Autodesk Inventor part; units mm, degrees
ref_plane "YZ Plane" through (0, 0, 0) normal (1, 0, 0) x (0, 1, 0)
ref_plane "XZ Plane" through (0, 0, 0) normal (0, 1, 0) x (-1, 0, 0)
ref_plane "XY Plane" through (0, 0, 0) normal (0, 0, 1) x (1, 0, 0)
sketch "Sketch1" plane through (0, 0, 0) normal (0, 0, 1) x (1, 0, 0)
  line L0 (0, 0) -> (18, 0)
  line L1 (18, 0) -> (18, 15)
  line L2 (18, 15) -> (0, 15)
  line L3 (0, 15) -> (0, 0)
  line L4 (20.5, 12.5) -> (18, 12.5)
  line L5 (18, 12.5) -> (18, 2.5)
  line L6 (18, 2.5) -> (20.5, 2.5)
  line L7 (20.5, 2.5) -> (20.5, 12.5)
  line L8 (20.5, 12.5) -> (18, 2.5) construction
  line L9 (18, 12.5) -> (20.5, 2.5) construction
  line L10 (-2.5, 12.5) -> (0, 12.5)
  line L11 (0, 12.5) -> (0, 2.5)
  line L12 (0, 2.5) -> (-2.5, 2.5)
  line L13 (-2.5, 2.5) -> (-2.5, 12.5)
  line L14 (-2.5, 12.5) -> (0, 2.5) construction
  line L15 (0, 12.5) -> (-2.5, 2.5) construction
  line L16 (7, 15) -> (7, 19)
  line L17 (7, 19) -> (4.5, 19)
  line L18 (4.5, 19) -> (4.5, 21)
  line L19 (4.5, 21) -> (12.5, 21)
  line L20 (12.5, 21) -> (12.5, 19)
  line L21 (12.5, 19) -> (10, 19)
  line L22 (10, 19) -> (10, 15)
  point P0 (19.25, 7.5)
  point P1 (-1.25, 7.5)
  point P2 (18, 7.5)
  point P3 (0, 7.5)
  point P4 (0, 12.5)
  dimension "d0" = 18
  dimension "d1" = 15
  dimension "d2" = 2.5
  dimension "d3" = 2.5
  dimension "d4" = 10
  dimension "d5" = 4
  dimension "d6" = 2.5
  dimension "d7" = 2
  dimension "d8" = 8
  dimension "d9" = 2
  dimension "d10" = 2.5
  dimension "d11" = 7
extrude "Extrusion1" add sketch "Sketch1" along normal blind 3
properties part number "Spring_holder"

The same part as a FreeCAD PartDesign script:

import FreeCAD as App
import Part
import Sketcher


def add_polygon(sketch, points):
    """Adds a closed chain of lines whose ends are joined by coincident constraints."""
    first, n = sketch.GeometryCount, len(points)
    for a, b in zip(points, points[1:] + points[:1]):
        sketch.addGeometry(Part.LineSegment(App.Vector(*a, 0), App.Vector(*b, 0)), False)
    for i in range(n):
        sketch.addConstraint(Sketcher.Constraint("Coincident", first + i, 2, first + (i + 1) % n, 1))

doc = App.newDocument("Part")
body = doc.addObject("PartDesign::Body", "Body")

sketch1 = body.newObject("Sketcher::SketchObject", "Sketch")
sketch1.AttachmentSupport = (doc.getObject("XY_Plane"), [""])
sketch1.MapMode = "FlatFace"
add_polygon(sketch1, [(0, 2.5), (0, 0), (18, 0), (18, 2.5), (20.5, 2.5), (20.5, 12.5), (18, 12.5), (18, 15), (10, 15), (10, 19), (12.5, 19), (12.5, 21), (4.5, 21), (4.5, 19), (7, 19), (7, 15), (0, 15), (0, 12.5), (-2.5, 12.5), (-2.5, 2.5)])
sketch1.addConstraint(Sketcher.Constraint("Vertical", 0))
sketch1.addConstraint(Sketcher.Constraint("Horizontal", 1))
sketch1.addConstraint(Sketcher.Constraint("Vertical", 2))
sketch1.addConstraint(Sketcher.Constraint("Horizontal", 3))
sketch1.addConstraint(Sketcher.Constraint("Vertical", 4))
sketch1.addConstraint(Sketcher.Constraint("Horizontal", 5))
sketch1.addConstraint(Sketcher.Constraint("Vertical", 6))
sketch1.addConstraint(Sketcher.Constraint("Horizontal", 7))
sketch1.addConstraint(Sketcher.Constraint("Vertical", 8))
sketch1.addConstraint(Sketcher.Constraint("Horizontal", 9))
sketch1.addConstraint(Sketcher.Constraint("Vertical", 10))
sketch1.addConstraint(Sketcher.Constraint("Horizontal", 11))
sketch1.addConstraint(Sketcher.Constraint("Vertical", 12))
sketch1.addConstraint(Sketcher.Constraint("Horizontal", 13))
sketch1.addConstraint(Sketcher.Constraint("Vertical", 14))
sketch1.addConstraint(Sketcher.Constraint("Horizontal", 15))
sketch1.addConstraint(Sketcher.Constraint("Vertical", 16))
sketch1.addConstraint(Sketcher.Constraint("Horizontal", 17))
sketch1.addConstraint(Sketcher.Constraint("Vertical", 18))
sketch1.addConstraint(Sketcher.Constraint("Horizontal", 19))
sketch1.addConstraint(Sketcher.Constraint("Coincident", 0, 2, -1, 1))
sketch1.addConstraint(Sketcher.Constraint("PointOnObject", 15, 2, -2))
sketch1.addConstraint(Sketcher.Constraint("Horizontal", 9, 2, 12, 2))
sketch1.addConstraint(Sketcher.Constraint("Horizontal", 7, 2, 14, 2))
sketch1.addConstraint(Sketcher.Constraint("Horizontal", 5, 2, 16, 2))
sketch1.addConstraint(Sketcher.Constraint("Horizontal", 3, 2, 18, 2))
sketch1.addConstraint(Sketcher.Constraint("Vertical", 2, 2, 5, 2))
sketch1.addConstraint(Sketcher.Constraint("Equal", 5, 9))
sketch1.addConstraint(Sketcher.Constraint("Equal", 7, 11))
sketch1.addConstraint(Sketcher.Constraint("Equal", 9, 13))
sketch1.addConstraint(Sketcher.Constraint("Equal", 13, 17))
sketch1.addConstraint(Sketcher.Constraint("Equal", 19, 0))
sketch1.addConstraint(Sketcher.Constraint("Equal", 2, 6))
sketch1.addConstraint(Sketcher.Constraint("DistanceX", 1, 1, 1, 2, 18.0))
sketch1.addConstraint(Sketcher.Constraint("DistanceX", 7, 2, 7, 1, 8.0))
sketch1.addConstraint(Sketcher.Constraint("DistanceX", 15, 2, 15, 1, 7.0))
sketch1.addConstraint(Sketcher.Constraint("DistanceY", 4, 1, 4, 2, 10.0))
sketch1.addConstraint(Sketcher.Constraint("DistanceY", 8, 1, 8, 2, 4.0))
sketch1.addConstraint(Sketcher.Constraint("DistanceY", 10, 1, 10, 2, 2.0))
pad1 = body.newObject("PartDesign::Pad", "Pad")
pad1.Profile = sketch1
pad1.Length = 3

doc.recompute()
